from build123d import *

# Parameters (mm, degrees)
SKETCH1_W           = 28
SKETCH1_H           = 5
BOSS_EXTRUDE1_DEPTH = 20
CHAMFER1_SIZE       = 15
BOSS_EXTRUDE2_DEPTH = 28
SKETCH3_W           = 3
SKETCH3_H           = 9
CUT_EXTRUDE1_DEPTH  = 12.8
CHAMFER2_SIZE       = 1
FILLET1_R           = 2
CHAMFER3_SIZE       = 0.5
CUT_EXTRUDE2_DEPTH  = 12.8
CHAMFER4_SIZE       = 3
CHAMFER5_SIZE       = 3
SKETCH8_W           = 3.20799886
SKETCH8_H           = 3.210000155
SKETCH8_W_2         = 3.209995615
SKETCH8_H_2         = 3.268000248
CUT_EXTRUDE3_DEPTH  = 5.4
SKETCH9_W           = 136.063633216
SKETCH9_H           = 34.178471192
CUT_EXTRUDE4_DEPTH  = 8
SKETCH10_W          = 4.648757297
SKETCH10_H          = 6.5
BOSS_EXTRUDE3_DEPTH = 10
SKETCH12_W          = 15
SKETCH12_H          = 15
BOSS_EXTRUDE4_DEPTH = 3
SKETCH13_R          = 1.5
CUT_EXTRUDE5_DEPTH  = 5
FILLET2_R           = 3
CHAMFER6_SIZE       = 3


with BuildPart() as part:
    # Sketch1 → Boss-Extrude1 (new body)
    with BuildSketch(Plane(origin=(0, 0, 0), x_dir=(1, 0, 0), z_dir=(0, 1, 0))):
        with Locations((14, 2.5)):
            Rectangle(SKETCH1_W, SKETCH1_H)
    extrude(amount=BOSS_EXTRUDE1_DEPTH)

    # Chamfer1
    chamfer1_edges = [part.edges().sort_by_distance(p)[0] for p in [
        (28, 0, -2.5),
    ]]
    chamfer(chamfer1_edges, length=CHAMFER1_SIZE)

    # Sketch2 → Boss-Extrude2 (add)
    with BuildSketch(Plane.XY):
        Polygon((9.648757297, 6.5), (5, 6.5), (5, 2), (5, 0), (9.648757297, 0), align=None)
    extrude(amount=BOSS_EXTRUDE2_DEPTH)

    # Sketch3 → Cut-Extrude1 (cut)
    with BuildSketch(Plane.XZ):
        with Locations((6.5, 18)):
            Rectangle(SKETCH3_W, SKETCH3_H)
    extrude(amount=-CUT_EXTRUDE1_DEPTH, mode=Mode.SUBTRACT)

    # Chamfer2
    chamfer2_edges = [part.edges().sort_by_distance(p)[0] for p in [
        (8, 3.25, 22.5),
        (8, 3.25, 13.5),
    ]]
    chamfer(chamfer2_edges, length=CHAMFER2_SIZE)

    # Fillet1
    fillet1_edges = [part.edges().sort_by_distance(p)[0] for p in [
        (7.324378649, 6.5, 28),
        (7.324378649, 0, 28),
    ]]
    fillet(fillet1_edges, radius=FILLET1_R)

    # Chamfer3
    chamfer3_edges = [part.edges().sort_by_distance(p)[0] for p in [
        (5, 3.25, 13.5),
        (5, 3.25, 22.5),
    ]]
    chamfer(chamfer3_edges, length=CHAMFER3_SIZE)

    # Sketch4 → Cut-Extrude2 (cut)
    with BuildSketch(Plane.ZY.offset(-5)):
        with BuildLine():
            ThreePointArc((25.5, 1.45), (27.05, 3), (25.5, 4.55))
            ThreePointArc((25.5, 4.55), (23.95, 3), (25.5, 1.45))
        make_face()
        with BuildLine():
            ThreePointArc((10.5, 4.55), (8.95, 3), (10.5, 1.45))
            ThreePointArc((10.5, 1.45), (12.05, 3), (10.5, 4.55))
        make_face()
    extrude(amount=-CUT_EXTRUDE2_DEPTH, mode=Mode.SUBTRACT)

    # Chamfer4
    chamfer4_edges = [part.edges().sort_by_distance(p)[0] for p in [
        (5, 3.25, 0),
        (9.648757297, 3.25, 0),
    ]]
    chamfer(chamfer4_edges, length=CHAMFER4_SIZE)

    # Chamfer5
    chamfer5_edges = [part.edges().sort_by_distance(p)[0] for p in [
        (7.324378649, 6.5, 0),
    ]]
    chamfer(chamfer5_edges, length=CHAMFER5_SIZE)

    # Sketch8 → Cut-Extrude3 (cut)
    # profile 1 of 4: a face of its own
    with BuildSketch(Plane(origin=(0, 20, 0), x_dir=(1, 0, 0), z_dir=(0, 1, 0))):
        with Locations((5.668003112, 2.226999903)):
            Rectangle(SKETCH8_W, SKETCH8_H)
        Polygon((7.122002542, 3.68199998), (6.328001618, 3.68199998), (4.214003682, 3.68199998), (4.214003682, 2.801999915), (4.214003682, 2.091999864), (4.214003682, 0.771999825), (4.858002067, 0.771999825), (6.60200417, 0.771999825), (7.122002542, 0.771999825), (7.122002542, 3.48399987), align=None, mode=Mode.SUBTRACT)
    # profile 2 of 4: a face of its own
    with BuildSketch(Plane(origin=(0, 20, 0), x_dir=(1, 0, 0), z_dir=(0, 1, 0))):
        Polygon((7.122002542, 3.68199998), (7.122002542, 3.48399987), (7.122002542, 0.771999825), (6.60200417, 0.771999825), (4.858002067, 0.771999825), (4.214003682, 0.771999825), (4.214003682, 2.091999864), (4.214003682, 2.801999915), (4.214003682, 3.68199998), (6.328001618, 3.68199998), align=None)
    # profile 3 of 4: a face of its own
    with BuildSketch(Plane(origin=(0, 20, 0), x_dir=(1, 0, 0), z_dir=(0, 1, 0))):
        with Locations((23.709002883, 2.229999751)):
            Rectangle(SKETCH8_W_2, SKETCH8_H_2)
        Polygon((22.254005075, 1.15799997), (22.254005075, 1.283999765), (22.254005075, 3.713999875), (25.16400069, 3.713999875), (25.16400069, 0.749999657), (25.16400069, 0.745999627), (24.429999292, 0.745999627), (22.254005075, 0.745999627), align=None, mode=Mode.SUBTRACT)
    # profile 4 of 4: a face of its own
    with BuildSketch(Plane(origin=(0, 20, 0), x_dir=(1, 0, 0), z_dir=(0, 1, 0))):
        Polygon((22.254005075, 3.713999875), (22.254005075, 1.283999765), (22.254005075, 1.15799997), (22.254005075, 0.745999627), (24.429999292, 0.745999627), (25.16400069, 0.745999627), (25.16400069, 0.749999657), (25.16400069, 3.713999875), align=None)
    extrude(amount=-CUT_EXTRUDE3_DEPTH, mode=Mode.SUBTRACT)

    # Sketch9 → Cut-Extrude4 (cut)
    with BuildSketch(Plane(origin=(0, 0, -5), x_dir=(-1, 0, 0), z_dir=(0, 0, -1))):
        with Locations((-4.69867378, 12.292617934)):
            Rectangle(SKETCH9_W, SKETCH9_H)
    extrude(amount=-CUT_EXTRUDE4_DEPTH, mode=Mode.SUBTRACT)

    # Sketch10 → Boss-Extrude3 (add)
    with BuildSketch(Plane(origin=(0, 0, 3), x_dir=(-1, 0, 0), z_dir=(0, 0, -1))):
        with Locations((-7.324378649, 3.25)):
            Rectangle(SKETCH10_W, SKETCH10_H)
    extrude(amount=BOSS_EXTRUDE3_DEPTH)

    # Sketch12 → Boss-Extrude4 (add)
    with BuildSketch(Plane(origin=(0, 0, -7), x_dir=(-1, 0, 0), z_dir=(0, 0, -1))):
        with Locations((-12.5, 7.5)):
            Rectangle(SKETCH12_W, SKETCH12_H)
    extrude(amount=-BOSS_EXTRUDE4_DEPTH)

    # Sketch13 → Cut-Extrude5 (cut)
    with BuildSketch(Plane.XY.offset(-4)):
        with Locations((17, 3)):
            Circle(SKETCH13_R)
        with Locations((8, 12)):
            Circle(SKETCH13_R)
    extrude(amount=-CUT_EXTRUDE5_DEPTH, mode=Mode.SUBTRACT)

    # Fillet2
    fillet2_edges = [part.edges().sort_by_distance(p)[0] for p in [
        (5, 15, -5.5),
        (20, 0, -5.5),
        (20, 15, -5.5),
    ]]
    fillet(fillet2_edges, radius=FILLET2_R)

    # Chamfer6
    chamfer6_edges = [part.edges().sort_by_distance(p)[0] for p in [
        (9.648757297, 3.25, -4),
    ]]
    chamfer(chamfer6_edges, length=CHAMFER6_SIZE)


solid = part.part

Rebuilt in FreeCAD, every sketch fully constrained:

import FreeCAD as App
import Part
import Sketcher
Q = App.Units.Quantity


def edges_at(feature, points):
    """Names of the edges that pass closest to the given points."""
    edges = feature.Shape.Edges
    near = lambda p: min(range(len(edges)), key=lambda i: edges[i].distToShape(Part.Vertex(*p))[0])
    return sorted({f"Edge{near(p) + 1}" for p in points})


def add_polygon(sketch, points):
    """Adds a closed chain of lines whose ends are joined by coincident constraints."""
    first, n = sketch.GeometryCount, len(points)
    for a, b in zip(points, points[1:] + points[:1]):
        sketch.addGeometry(Part.LineSegment(App.Vector(*a, 0), App.Vector(*b, 0)), False)
    for i in range(n):
        sketch.addConstraint(Sketcher.Constraint("Coincident", first + i, 2, first + (i + 1) % n, 1))

doc = App.newDocument("Part")
body = doc.addObject("PartDesign::Body", "Body")

sketch1 = body.newObject("Sketcher::SketchObject", "Sketch")
sketch1.AttachmentSupport = (doc.getObject("XZ_Plane"), [""])
sketch1.MapMode = "FlatFace"
add_polygon(sketch1, [(0, -5), (0, 0), (28, 0), (28, -5)])
sketch1.addConstraint([
    Sketcher.Constraint("Vertical", 0),
    Sketcher.Constraint("Horizontal", 1),
    Sketcher.Constraint("Vertical", 2),
    Sketcher.Constraint("Horizontal", 3),
    Sketcher.Constraint("Coincident", 0, 2, -1, 1),
    Sketcher.Constraint("DistanceX", 1, 1, 1, 2, Q("28 mm")),
    Sketcher.Constraint("DistanceY", 0, 1, 0, 2, Q("5 mm")),
])
pad1 = body.newObject("PartDesign::Pad", "Pad")
pad1.Profile = sketch1
pad1.Length = 20
pad1.Reversed = True
doc.recompute()

chamfer = body.newObject("PartDesign::Chamfer", "Chamfer")
chamfer.Base = (pad1, edges_at(pad1, [(28, 0, -2.5)]))
chamfer.Size = 15

sketch2 = body.newObject("Sketcher::SketchObject", "Sketch001")
sketch2.AttachmentSupport = (doc.getObject("XY_Plane"), [""])
sketch2.MapMode = "FlatFace"
add_polygon(sketch2, [(9.6, 6.5), (5, 6.5), (5, 0), (9.6, 0)])
sketch2.addConstraint([
    Sketcher.Constraint("Horizontal", 0),
    Sketcher.Constraint("Vertical", 1),
    Sketcher.Constraint("Horizontal", 2),
    Sketcher.Constraint("Vertical", 3),
    Sketcher.Constraint("PointOnObject", 1, 2, -1),
    Sketcher.Constraint("DistanceY", 1, 2, 1, 1, Q("6.5 mm")),
    Sketcher.Constraint("DistanceX", -1, 1, 0, 2, Q("5 mm")),
    Sketcher.Constraint("DistanceX", 0, 2, 0, 1, Q("4.648757 mm")),
])
pad2 = body.newObject("PartDesign::Pad", "Pad001")
pad2.Profile = sketch2
pad2.Length = 28

sketch3 = body.newObject("Sketcher::SketchObject", "Sketch002")
sketch3.AttachmentSupport = (doc.getObject("XZ_Plane"), [""])
sketch3.MapMode = "FlatFace"
add_polygon(sketch3, [(5, 22.5), (5, 13.5), (8, 13.5), (8, 22.5)])
sketch3.addConstraint([
    Sketcher.Constraint("Vertical", 0),
    Sketcher.Constraint("Horizontal", 1),
    Sketcher.Constraint("Vertical", 2),
    Sketcher.Constraint("Horizontal", 3),
    Sketcher.Constraint("DistanceX", 1, 1, 1, 2, Q("3 mm")),
    Sketcher.Constraint("DistanceY", 0, 2, 0, 1, Q("9 mm")),
    Sketcher.Constraint("DistanceX", -1, 1, 0, 2, Q("5 mm")),
    Sketcher.Constraint("DistanceY", -1, 1, 0, 2, Q("13.5 mm")),
])
pocket1 = body.newObject("PartDesign::Pocket", "Pocket")
pocket1.Profile = sketch3
pocket1.Length = 12.8
doc.recompute()

chamfer2 = body.newObject("PartDesign::Chamfer", "Chamfer001")
chamfer2.Base = (pocket1, edges_at(pocket1, [(8, 3.25, 22.5), (8, 3.25, 13.5)]))
chamfer2.Size = 1
doc.recompute()

fillet = body.newObject("PartDesign::Fillet", "Fillet")
fillet.Base = (chamfer2, edges_at(chamfer2, [(7.324, 6.5, 28), (7.324, 0, 28)]))
fillet.Radius = 2
doc.recompute()

chamfer3 = body.newObject("PartDesign::Chamfer", "Chamfer002")
chamfer3.Base = (fillet, edges_at(fillet, [(5, 3.25, 13.5), (5, 3.25, 22.5)]))
chamfer3.Size = 0.5

sketch4 = body.newObject("Sketcher::SketchObject", "Sketch003")
sketch4.AttachmentSupport = (doc.getObject("YZ_Plane"), [""])
sketch4.MapMode = "FlatFace"
sketch4.AttachmentOffset = App.Placement(App.Vector(0, 0, 5), App.Rotation())
sketch4.addGeometry([
    Part.Circle(App.Vector(3, 25.5, 0), App.Vector(0, 0, 1), 1.6),
    Part.Circle(App.Vector(3, 10.5, 0), App.Vector(0, 0, 1), 1.6),
], False)
sketch4.addConstraint([
    Sketcher.Constraint("Equal", 0, 1),
    Sketcher.Constraint("Vertical", 0, 3, 1, 3),
    Sketcher.Constraint("Diameter", 0, Q("3.1 mm")),
    Sketcher.Constraint("DistanceX", -1, 1, 0, 3, Q("3 mm")),
    Sketcher.Constraint("DistanceY", 1, 3, 0, 3, Q("15 mm")),
    Sketcher.Constraint("DistanceY", -1, 1, 0, 3, Q("25.5 mm")),
])
pocket2 = body.newObject("PartDesign::Pocket", "Pocket001")
pocket2.Profile = sketch4
pocket2.Length = 12.8
pocket2.Reversed = True
doc.recompute()

chamfer4 = body.newObject("PartDesign::Chamfer", "Chamfer003")
chamfer4.Base = (pocket2, edges_at(pocket2, [(5, 3.25, 0), (9.649, 3.25, 0)]))
chamfer4.Size = 3
doc.recompute()

chamfer5 = body.newObject("PartDesign::Chamfer", "Chamfer004")
chamfer5.Base = (chamfer4, edges_at(chamfer4, [(7.324, 6.5, 0)]))
chamfer5.Size = 3

sketch5 = body.newObject("Sketcher::SketchObject", "Sketch004")
sketch5.AttachmentSupport = (doc.getObject("XZ_Plane"), [""])
sketch5.MapMode = "FlatFace"
sketch5.AttachmentOffset = App.Placement(App.Vector(0, 0, -20), App.Rotation())
add_polygon(sketch5, [(4.1, -3.8), (4.1, -0.6), (7.3, -0.6), (7.3, -3.8)])
add_polygon(sketch5, [(22.1, -3.9), (22.1, -0.6), (25.3, -0.6), (25.3, -3.9)])
sketch5.addConstraint([
    Sketcher.Constraint("Vertical", 0),
    Sketcher.Constraint("Horizontal", 1),
    Sketcher.Constraint("Vertical", 2),
    Sketcher.Constraint("Horizontal", 3),
    Sketcher.Constraint("Vertical", 4),
    Sketcher.Constraint("Horizontal", 5),
    Sketcher.Constraint("Vertical", 6),
    Sketcher.Constraint("Horizontal", 7),
    Sketcher.Constraint("DistanceY", 0, 1, 0, 2, Q("3.21 mm")),
    Sketcher.Constraint("DistanceX", 1, 1, 1, 2, Q("3.207999 mm")),
    Sketcher.Constraint("DistanceY", 4, 1, 4, 2, Q("3.268 mm")),
    Sketcher.Constraint("DistanceX", 0, 2, 4, 2, Q("18.040001 mm")),
    Sketcher.Constraint("DistanceY", 0, 2, -1, 1, Q("0.622 mm")),
    Sketcher.Constraint("DistanceY", 4, 2, -1, 1, Q("0.596 mm")),
    Sketcher.Constraint("DistanceX", -1, 1, 5, 2, Q("25.314001 mm")),
    Sketcher.Constraint("DistanceX", 1, 2, 5, 2, Q("18.041998 mm")),
])
pocket3 = body.newObject("PartDesign::Pocket", "Pocket002")
pocket3.Profile = sketch5
pocket3.Length = 5.4
pocket3.Reversed = True

sketch6 = body.newObject("Sketcher::SketchObject", "Sketch005")
sketch6.AttachmentSupport = (doc.getObject("XY_Plane"), [""])
sketch6.MapMode = "FlatFace"
sketch6.AttachmentOffset = App.Placement(App.Vector(0, 0, -5), App.Rotation())
add_polygon(sketch6, [(73, 29), (73, -5), (-63, -5), (-63, 29)])
sketch6.addConstraint([
    Sketcher.Constraint("Vertical", 0),
    Sketcher.Constraint("Horizontal", 1),
    Sketcher.Constraint("Vertical", 2),
    Sketcher.Constraint("Horizontal", 3),
    Sketcher.Constraint("DistanceY", 0, 2, 0, 1, Q("34.178471 mm")),
    Sketcher.Constraint("DistanceX", 1, 2, 1, 1, Q("136.063633 mm")),
    Sketcher.Constraint("DistanceX", -1, 1, 0, 2, Q("72.73049 mm")),
    Sketcher.Constraint("DistanceY", 0, 2, -1, 1, Q("4.796618 mm")),
])
pocket4 = body.newObject("PartDesign::Pocket", "Pocket003")
pocket4.Profile = sketch6
pocket4.Length = 8
pocket4.Reversed = True

sketch7 = body.newObject("Sketcher::SketchObject", "Sketch006")
sketch7.AttachmentSupport = (doc.getObject("XY_Plane"), [""])
sketch7.MapMode = "FlatFace"
sketch7.AttachmentOffset = App.Placement(App.Vector(0, 0, 3), App.Rotation())
add_polygon(sketch7, [(9.6, 6.5), (9.6, 0), (5, 0), (5, 6.5)])
sketch7.addConstraint([
    Sketcher.Constraint("Vertical", 0),
    Sketcher.Constraint("Horizontal", 1),
    Sketcher.Constraint("Vertical", 2),
    Sketcher.Constraint("Horizontal", 3),
    Sketcher.Constraint("PointOnObject", 0, 2, -1),
    Sketcher.Constraint("DistanceY", 0, 2, 0, 1, Q("6.5 mm")),
    Sketcher.Constraint("DistanceX", -1, 1, 1, 2, Q("5 mm")),
    Sketcher.Constraint("DistanceX", 1, 2, 1, 1, Q("4.648757 mm")),
])
pad3 = body.newObject("PartDesign::Pad", "Pad002")
pad3.Profile = sketch7
pad3.Length = 10
pad3.Reversed = True

sketch8 = body.newObject("Sketcher::SketchObject", "Sketch007")
sketch8.AttachmentSupport = (doc.getObject("XY_Plane"), [""])
sketch8.MapMode = "FlatFace"
sketch8.AttachmentOffset = App.Placement(App.Vector(0, 0, -7), App.Rotation())
add_polygon(sketch8, [(20, 15), (20, 0), (5, 0), (5, 15)])
sketch8.addConstraint([
    Sketcher.Constraint("Vertical", 0),
    Sketcher.Constraint("Horizontal", 1),
    Sketcher.Constraint("Vertical", 2),
    Sketcher.Constraint("Horizontal", 3),
    Sketcher.Constraint("PointOnObject", 0, 2, -1),
    Sketcher.Constraint("Equal", 3, 0),
    Sketcher.Constraint("DistanceX", 1, 2, 1, 1, Q("15 mm")),
    Sketcher.Constraint("DistanceX", -1, 1, 0, 2, Q("20 mm")),
])
pad4 = body.newObject("PartDesign::Pad", "Pad003")
pad4.Profile = sketch8
pad4.Length = 3

sketch9 = body.newObject("Sketcher::SketchObject", "Sketch008")
sketch9.AttachmentSupport = (doc.getObject("XY_Plane"), [""])
sketch9.MapMode = "FlatFace"
sketch9.AttachmentOffset = App.Placement(App.Vector(0, 0, -4), App.Rotation())
sketch9.addGeometry([
    Part.Circle(App.Vector(17, 3, 0), App.Vector(0, 0, 1), 1.5),
    Part.Circle(App.Vector(8, 12, 0), App.Vector(0, 0, 1), 1.5),
], False)
sketch9.addConstraint([
    Sketcher.Constraint("Equal", 0, 1),
    Sketcher.Constraint("Diameter", 0, Q("3 mm")),
    Sketcher.Constraint("DistanceX", -1, 1, 0, 3, Q("17 mm")),
    Sketcher.Constraint("DistanceY", -1, 1, 0, 3, Q("3 mm")),
    Sketcher.Constraint("DistanceX", -1, 1, 1, 3, Q("8 mm")),
    Sketcher.Constraint("DistanceY", -1, 1, 1, 3, Q("12 mm")),
])
pocket5 = body.newObject("PartDesign::Pocket", "Pocket004")
pocket5.Profile = sketch9
pocket5.Length = 5
doc.recompute()

fillet2 = body.newObject("PartDesign::Fillet", "Fillet001")
fillet2.Base = (pocket5, edges_at(pocket5, [(5, 15, -5.5), (20, 0, -5.5), (20, 15, -5.5)]))
fillet2.Radius = 3
doc.recompute()

chamfer6 = body.newObject("PartDesign::Chamfer", "Chamfer005")
chamfer6.Base = (fillet2, edges_at(fillet2, [(9.649, 3.25, -4)]))
chamfer6.Size = 3

doc.recompute()
